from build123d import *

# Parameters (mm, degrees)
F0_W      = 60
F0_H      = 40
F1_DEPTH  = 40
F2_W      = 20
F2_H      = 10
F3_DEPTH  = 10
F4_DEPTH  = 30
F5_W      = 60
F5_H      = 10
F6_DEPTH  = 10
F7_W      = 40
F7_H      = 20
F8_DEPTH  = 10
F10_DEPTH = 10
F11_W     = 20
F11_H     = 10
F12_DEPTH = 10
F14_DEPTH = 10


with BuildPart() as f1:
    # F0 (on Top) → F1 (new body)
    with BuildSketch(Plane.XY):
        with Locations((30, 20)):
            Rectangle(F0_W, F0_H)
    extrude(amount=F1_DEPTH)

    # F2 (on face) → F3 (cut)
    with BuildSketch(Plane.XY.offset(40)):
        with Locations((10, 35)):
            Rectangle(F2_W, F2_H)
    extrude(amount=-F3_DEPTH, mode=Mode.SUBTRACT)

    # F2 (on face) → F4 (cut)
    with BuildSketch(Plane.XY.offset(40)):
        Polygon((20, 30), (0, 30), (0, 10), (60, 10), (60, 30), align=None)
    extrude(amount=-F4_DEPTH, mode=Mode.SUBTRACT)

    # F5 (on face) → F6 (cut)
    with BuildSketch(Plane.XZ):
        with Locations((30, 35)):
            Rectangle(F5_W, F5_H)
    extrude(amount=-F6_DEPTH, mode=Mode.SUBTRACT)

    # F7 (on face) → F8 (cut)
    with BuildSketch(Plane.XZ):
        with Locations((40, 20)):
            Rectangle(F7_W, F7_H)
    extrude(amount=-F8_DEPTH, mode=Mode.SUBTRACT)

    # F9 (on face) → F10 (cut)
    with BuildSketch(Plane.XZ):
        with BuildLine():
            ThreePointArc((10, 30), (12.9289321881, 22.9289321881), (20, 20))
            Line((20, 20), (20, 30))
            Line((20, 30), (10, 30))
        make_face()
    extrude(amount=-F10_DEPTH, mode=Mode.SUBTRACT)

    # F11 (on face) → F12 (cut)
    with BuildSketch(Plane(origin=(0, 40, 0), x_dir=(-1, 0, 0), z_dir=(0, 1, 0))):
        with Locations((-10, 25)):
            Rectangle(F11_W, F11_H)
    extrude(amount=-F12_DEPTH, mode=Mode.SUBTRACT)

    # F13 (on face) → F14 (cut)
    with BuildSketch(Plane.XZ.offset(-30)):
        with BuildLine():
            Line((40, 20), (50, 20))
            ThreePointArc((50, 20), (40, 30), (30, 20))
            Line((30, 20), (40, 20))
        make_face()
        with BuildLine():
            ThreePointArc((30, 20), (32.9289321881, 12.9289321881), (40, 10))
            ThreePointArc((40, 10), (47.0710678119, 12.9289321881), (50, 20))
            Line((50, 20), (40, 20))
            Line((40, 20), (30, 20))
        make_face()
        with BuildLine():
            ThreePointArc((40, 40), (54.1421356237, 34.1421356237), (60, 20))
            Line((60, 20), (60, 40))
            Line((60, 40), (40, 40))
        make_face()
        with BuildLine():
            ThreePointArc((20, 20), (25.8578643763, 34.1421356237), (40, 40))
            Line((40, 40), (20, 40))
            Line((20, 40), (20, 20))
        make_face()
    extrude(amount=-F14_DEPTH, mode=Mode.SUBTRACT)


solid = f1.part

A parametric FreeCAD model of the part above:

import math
import FreeCAD as App
import Part
import Sketcher
from FreeCAD import Vector
Q = App.Units.Quantity

doc = App.newDocument("Part")
params = doc.addObject("Spreadsheet::Sheet", "Params")
for row, (alias, value) in enumerate([
    ("sketch1_width", "60 mm"),
    ("sketch1_height", "40 mm"),
    ("pad1_length", "40 mm"),
    ("sketch2_width", "20 mm"),
    ("sketch2_height", "10 mm"),
    ("pocket1_length", "10 mm"),
    ("sketch3_width", "60 mm"),
    ("sketch3_height", "20 mm"),
    ("pocket2_length", "30 mm"),
    ("sketch4_width", "60 mm"),
    ("sketch4_height", "10 mm"),
    ("pocket3_length", "10 mm"),
    ("sketch5_width", "40 mm"),
    ("sketch5_height", "20 mm"),
    ("pocket4_length", "10 mm"),
    ("sketch6_radius", "10 mm"),
    ("pocket5_length", "10 mm"),
    ("sketch7_width", "20 mm"),
    ("sketch7_height", "10 mm"),
    ("pocket6_length", "10 mm"),
    ("sketch8_radius", "10 mm"),
    ("sketch8_radius2", "20 mm"),
    ("pocket7_length", "10 mm"),
], start=1):
    params.set(f"A{row}", alias)
    params.set(f"B{row}", "=" + value)
    params.setAlias(f"B{row}", alias)

body = doc.addObject("PartDesign::Body", "Body")

# Sketch on XY plane
sketch1 = body.newObject("Sketcher::SketchObject", "Sketch")
sketch1.AttachmentSupport = (doc.getObject("XY_Plane"), [""])
sketch1.MapMode = "FlatFace"
sketch1.addGeometry([
    Part.LineSegment(Vector(0, 40, 0), Vector(0, 0, 0)),
    Part.LineSegment(Vector(0, 0, 0), Vector(60, 0, 0)),
    Part.LineSegment(Vector(60, 0, 0), Vector(60, 40, 0)),
    Part.LineSegment(Vector(60, 40, 0), Vector(0, 40, 0)),
], False)
sketch1.addConstraint([
    Sketcher.Constraint("Coincident", 0, 2, 1, 1),
    Sketcher.Constraint("Coincident", 1, 2, 2, 1),
    Sketcher.Constraint("Coincident", 2, 2, 3, 1),
    Sketcher.Constraint("Coincident", 3, 2, 0, 1),
    Sketcher.Constraint("Vertical", 0),
    Sketcher.Constraint("Horizontal", 1),
    Sketcher.Constraint("Vertical", 2),
    Sketcher.Constraint("Horizontal", 3),
    Sketcher.Constraint("Coincident", 0, 2, -1, 1),
    Sketcher.Constraint("DistanceX", 1, 1, 1, 2, Q("60 mm")),
    Sketcher.Constraint("DistanceY", 0, 2, 0, 1, Q("40 mm")),
])
sketch1.setExpression("Constraints[9]", "Params.sketch1_width")
sketch1.setExpression("Constraints[10]", "Params.sketch1_height")
pad1 = body.newObject("PartDesign::Pad", "Pad")
pad1.Profile = sketch1
pad1.setExpression("Length", "Params.pad1_length")

# Sketch on XY plane
sketch2 = body.newObject("Sketcher::SketchObject", "Sketch001")
sketch2.AttachmentSupport = (doc.getObject("XY_Plane"), [""])
sketch2.MapMode = "FlatFace"
sketch2.AttachmentOffset = App.Placement(Vector(0, 0, 40), App.Rotation())
sketch2.addGeometry([
    Part.LineSegment(Vector(0, 40, 0), Vector(0, 30, 0)),
    Part.LineSegment(Vector(0, 30, 0), Vector(20, 30, 0)),
    Part.LineSegment(Vector(20, 30, 0), Vector(20, 40, 0)),
    Part.LineSegment(Vector(20, 40, 0), Vector(0, 40, 0)),
], False)
sketch2.addConstraint([
    Sketcher.Constraint("Coincident", 0, 2, 1, 1),
    Sketcher.Constraint("Coincident", 1, 2, 2, 1),
    Sketcher.Constraint("Coincident", 2, 2, 3, 1),
    Sketcher.Constraint("Coincident", 3, 2, 0, 1),
    Sketcher.Constraint("Vertical", 0),
    Sketcher.Constraint("Horizontal", 1),
    Sketcher.Constraint("Vertical", 2),
    Sketcher.Constraint("Horizontal", 3),
    Sketcher.Constraint("PointOnObject", 0, 2, -2),
    Sketcher.Constraint("DistanceX", 1, 1, 1, 2, Q("20 mm")),
    Sketcher.Constraint("DistanceY", 0, 2, 0, 1, Q("10 mm")),
    Sketcher.Constraint("DistanceY", -1, 1, 0, 2, Q("30 mm")),
])
sketch2.setExpression("Constraints[9]", "Params.sketch2_width")
sketch2.setExpression("Constraints[10]", "Params.sketch2_height")
pocket1 = body.newObject("PartDesign::Pocket", "Pocket")
pocket1.Profile = sketch2
pocket1.setExpression("Length", "Params.pocket1_length")

# Sketch on XY plane
sketch3 = body.newObject("Sketcher::SketchObject", "Sketch002")
sketch3.AttachmentSupport = (doc.getObject("XY_Plane"), [""])
sketch3.MapMode = "FlatFace"
sketch3.AttachmentOffset = App.Placement(Vector(0, 0, 40), App.Rotation())
sketch3.addGeometry([
    Part.LineSegment(Vector(0, 30, 0), Vector(0, 10, 0)),
    Part.LineSegment(Vector(0, 10, 0), Vector(60, 10, 0)),
    Part.LineSegment(Vector(60, 10, 0), Vector(60, 30, 0)),
    Part.LineSegment(Vector(60, 30, 0), Vector(0, 30, 0)),
], False)
sketch3.addConstraint([
    Sketcher.Constraint("Coincident", 0, 2, 1, 1),
    Sketcher.Constraint("Coincident", 1, 2, 2, 1),
    Sketcher.Constraint("Coincident", 2, 2, 3, 1),
    Sketcher.Constraint("Coincident", 3, 2, 0, 1),
    Sketcher.Constraint("Vertical", 0),
    Sketcher.Constraint("Horizontal", 1),
    Sketcher.Constraint("Vertical", 2),
    Sketcher.Constraint("Horizontal", 3),
    Sketcher.Constraint("PointOnObject", 0, 2, -2),
    Sketcher.Constraint("DistanceX", 1, 1, 1, 2, Q("60 mm")),
    Sketcher.Constraint("DistanceY", 0, 2, 0, 1, Q("20 mm")),
    Sketcher.Constraint("DistanceY", -1, 1, 0, 2, Q("10 mm")),
])
sketch3.setExpression("Constraints[9]", "Params.sketch3_width")
sketch3.setExpression("Constraints[10]", "Params.sketch3_height")
pocket2 = body.newObject("PartDesign::Pocket", "Pocket001")
pocket2.Profile = sketch3
pocket2.setExpression("Length", "Params.pocket2_length")

# Sketch on XZ plane
sketch4 = body.newObject("Sketcher::SketchObject", "Sketch003")
sketch4.AttachmentSupport = (doc.getObject("XZ_Plane"), [""])
sketch4.MapMode = "FlatFace"
sketch4.addGeometry([
    Part.LineSegment(Vector(0, 40, 0), Vector(0, 30, 0)),
    Part.LineSegment(Vector(0, 30, 0), Vector(60, 30, 0)),
    Part.LineSegment(Vector(60, 30, 0), Vector(60, 40, 0)),
    Part.LineSegment(Vector(60, 40, 0), Vector(0, 40, 0)),
], False)
sketch4.addConstraint([
    Sketcher.Constraint("Coincident", 0, 2, 1, 1),
    Sketcher.Constraint("Coincident", 1, 2, 2, 1),
    Sketcher.Constraint("Coincident", 2, 2, 3, 1),
    Sketcher.Constraint("Coincident", 3, 2, 0, 1),
    Sketcher.Constraint("Vertical", 0),
    Sketcher.Constraint("Horizontal", 1),
    Sketcher.Constraint("Vertical", 2),
    Sketcher.Constraint("Horizontal", 3),
    Sketcher.Constraint("PointOnObject", 0, 2, -2),
    Sketcher.Constraint("DistanceX", 1, 1, 1, 2, Q("60 mm")),
    Sketcher.Constraint("DistanceY", 0, 2, 0, 1, Q("10 mm")),
    Sketcher.Constraint("DistanceY", -1, 1, 0, 2, Q("30 mm")),
])
sketch4.setExpression("Constraints[9]", "Params.sketch4_width")
sketch4.setExpression("Constraints[10]", "Params.sketch4_height")
pocket3 = body.newObject("PartDesign::Pocket", "Pocket002")
pocket3.Profile = sketch4
pocket3.setExpression("Length", "Params.pocket3_length")

# Sketch on XZ plane
sketch5 = body.newObject("Sketcher::SketchObject", "Sketch004")
sketch5.AttachmentSupport = (doc.getObject("XZ_Plane"), [""])
sketch5.MapMode = "FlatFace"
sketch5.addGeometry([
    Part.LineSegment(Vector(20, 30, 0), Vector(20, 10, 0)),
    Part.LineSegment(Vector(20, 10, 0), Vector(60, 10, 0)),
    Part.LineSegment(Vector(60, 10, 0), Vector(60, 30, 0)),
    Part.LineSegment(Vector(60, 30, 0), Vector(20, 30, 0)),
], False)
sketch5.addConstraint([
    Sketcher.Constraint("Coincident", 0, 2, 1, 1),
    Sketcher.Constraint("Coincident", 1, 2, 2, 1),
    Sketcher.Constraint("Coincident", 2, 2, 3, 1),
    Sketcher.Constraint("Coincident", 3, 2, 0, 1),
    Sketcher.Constraint("Vertical", 0),
    Sketcher.Constraint("Horizontal", 1),
    Sketcher.Constraint("Vertical", 2),
    Sketcher.Constraint("Horizontal", 3),
    Sketcher.Constraint("DistanceX", 1, 1, 1, 2, Q("40 mm")),
    Sketcher.Constraint("DistanceY", 0, 2, 0, 1, Q("20 mm")),
    Sketcher.Constraint("DistanceX", -1, 1, 0, 2, Q("20 mm")),
    Sketcher.Constraint("DistanceY", -1, 1, 0, 2, Q("10 mm")),
])
sketch5.setExpression("Constraints[8]", "Params.sketch5_width")
sketch5.setExpression("Constraints[9]", "Params.sketch5_height")
pocket4 = body.newObject("PartDesign::Pocket", "Pocket003")
pocket4.Profile = sketch5
pocket4.setExpression("Length", "Params.pocket4_length")

# Sketch on XZ plane
sketch6 = body.newObject("Sketcher::SketchObject", "Sketch005")
sketch6.AttachmentSupport = (doc.getObject("XZ_Plane"), [""])
sketch6.MapMode = "FlatFace"
sketch6.addGeometry([
    Part.ArcOfCircle(Part.Circle(Vector(20, 30, 0), Vector(0, 0, 1), 10), math.radians(180), math.radians(270)),
    Part.LineSegment(Vector(20, 20, 0), Vector(20, 30, 0)),
    Part.LineSegment(Vector(20, 30, 0), Vector(10, 30, 0)),
], False)
sketch6.addConstraint([
    Sketcher.Constraint("Coincident", 0, 2, 1, 1),
    Sketcher.Constraint("Coincident", 1, 2, 2, 1),
    Sketcher.Constraint("Coincident", 2, 2, 0, 1),
    Sketcher.Constraint("Vertical", 1),
    Sketcher.Constraint("Horizontal", 2),
    Sketcher.Constraint("Coincident", 1, 2, 0, 3),
    Sketcher.Constraint("Radius", 0, Q("10 mm")),
    Sketcher.Constraint("DistanceX", -1, 1, 0, 3, Q("20 mm")),
    Sketcher.Constraint("DistanceY", -1, 1, 0, 3, Q("30 mm")),
])
sketch6.setExpression("Constraints[6]", "Params.sketch6_radius")
pocket5 = body.newObject("PartDesign::Pocket", "Pocket004")
pocket5.Profile = sketch6
pocket5.setExpression("Length", "Params.pocket5_length")

# Sketch on XZ plane
sketch7 = body.newObject("Sketcher::SketchObject", "Sketch006")
sketch7.AttachmentSupport = (doc.getObject("XZ_Plane"), [""])
sketch7.MapMode = "FlatFace"
sketch7.AttachmentOffset = App.Placement(Vector(0, 0, -40), App.Rotation())
sketch7.addGeometry([
    Part.LineSegment(Vector(20, 30, 0), Vector(20, 20, 0)),
    Part.LineSegment(Vector(20, 20, 0), Vector(0, 20, 0)),
    Part.LineSegment(Vector(0, 20, 0), Vector(0, 30, 0)),
    Part.LineSegment(Vector(0, 30, 0), Vector(20, 30, 0)),
], False)
sketch7.addConstraint([
    Sketcher.Constraint("Coincident", 0, 2, 1, 1),
    Sketcher.Constraint("Coincident", 1, 2, 2, 1),
    Sketcher.Constraint("Coincident", 2, 2, 3, 1),
    Sketcher.Constraint("Coincident", 3, 2, 0, 1),
    Sketcher.Constraint("Vertical", 0),
    Sketcher.Constraint("Horizontal", 1),
    Sketcher.Constraint("Vertical", 2),
    Sketcher.Constraint("Horizontal", 3),
    Sketcher.Constraint("PointOnObject", 1, 2, -2),
    Sketcher.Constraint("DistanceX", 1, 2, 1, 1, Q("20 mm")),
    Sketcher.Constraint("DistanceY", 0, 2, 0, 1, Q("10 mm")),
    Sketcher.Constraint("DistanceY", -1, 1, 0, 2, Q("20 mm")),
])
sketch7.setExpression("Constraints[9]", "Params.sketch7_width")
sketch7.setExpression("Constraints[10]", "Params.sketch7_height")
pocket6 = body.newObject("PartDesign::Pocket", "Pocket005")
pocket6.Profile = sketch7
pocket6.setExpression("Length", "Params.pocket6_length")
pocket6.Reversed = True

# Sketch on XZ plane
sketch8 = body.newObject("Sketcher::SketchObject", "Sketch007")
sketch8.AttachmentSupport = (doc.getObject("XZ_Plane"), [""])
sketch8.MapMode = "FlatFace"
sketch8.AttachmentOffset = App.Placement(Vector(0, 0, -30), App.Rotation())
sketch8.addGeometry([
    Part.ArcOfCircle(Part.Circle(Vector(40, 20, 0), Vector(0, 0, 1), 10), math.radians(0), math.radians(180)),  # 0
    Part.ArcOfCircle(Part.Circle(Vector(40, 20, 0), Vector(0, 0, 1), 10), math.radians(180), math.radians(270)),  # 1
    Part.ArcOfCircle(Part.Circle(Vector(40, 20, 0), Vector(0, 0, 1), 10), math.radians(-90), math.radians(0)),  # 2
    Part.ArcOfCircle(Part.Circle(Vector(40, 20, 0), Vector(0, 0, 1), 20), math.radians(0), math.radians(90)),  # 3
    Part.LineSegment(Vector(60, 20, 0), Vector(60, 40, 0)),  # 4
    Part.LineSegment(Vector(60, 40, 0), Vector(40, 40, 0)),  # 5
    Part.ArcOfCircle(Part.Circle(Vector(40, 20, 0), Vector(0, 0, 1), 20), math.radians(90), math.radians(180)),  # 6
    Part.LineSegment(Vector(40, 40, 0), Vector(20, 40, 0)),  # 7
    Part.LineSegment(Vector(20, 40, 0), Vector(20, 20, 0)),  # 8
], False)
sketch8.addConstraint([
    Sketcher.Constraint("Tangent", 0, 2, 1, 1),
    Sketcher.Constraint("Tangent", 1, 2, 2, 1),
    Sketcher.Constraint("Tangent", 2, 2, 0, 1),
    Sketcher.Constraint("Tangent", 3, 1, 4, 1),
    Sketcher.Constraint("Coincident", 4, 2, 5, 1),
    Sketcher.Constraint("Tangent", 5, 2, 3, 2),
    Sketcher.Constraint("Tangent", 6, 1, 7, 1),
    Sketcher.Constraint("Coincident", 7, 2, 8, 1),
    Sketcher.Constraint("Tangent", 8, 2, 6, 2),
    Sketcher.Constraint("Vertical", 4),
    Sketcher.Constraint("Horizontal", 5),
    Sketcher.Constraint("Horizontal", 7),
    Sketcher.Constraint("Vertical", 8),
    Sketcher.Constraint("Coincident", 3, 3, 0, 3),
    Sketcher.Constraint("Coincident", 6, 3, 0, 3),
    Sketcher.Constraint("Equal", 3, 6),
    Sketcher.Constraint("Horizontal", 6, 3, 0, 2),
    Sketcher.Constraint("Horizontal", 0, 2, 2, 2),
    Sketcher.Constraint("Vertical", 6, 3, 1, 2),
    Sketcher.Constraint("Radius", 0, Q("10 mm")),
    Sketcher.Constraint("Radius", 3, Q("20 mm")),
    Sketcher.Constraint("DistanceX", -1, 1, 0, 3, Q("40 mm")),
    Sketcher.Constraint("DistanceY", -1, 1, 0, 3, Q("20 mm")),
])
sketch8.setExpression("Constraints[19]", "Params.sketch8_radius")
sketch8.setExpression("Constraints[20]", "Params.sketch8_radius2")
pocket7 = body.newObject("PartDesign::Pocket", "Pocket006")
pocket7.Profile = sketch8
pocket7.setExpression("Length", "Params.pocket7_length")

doc.recompute()
